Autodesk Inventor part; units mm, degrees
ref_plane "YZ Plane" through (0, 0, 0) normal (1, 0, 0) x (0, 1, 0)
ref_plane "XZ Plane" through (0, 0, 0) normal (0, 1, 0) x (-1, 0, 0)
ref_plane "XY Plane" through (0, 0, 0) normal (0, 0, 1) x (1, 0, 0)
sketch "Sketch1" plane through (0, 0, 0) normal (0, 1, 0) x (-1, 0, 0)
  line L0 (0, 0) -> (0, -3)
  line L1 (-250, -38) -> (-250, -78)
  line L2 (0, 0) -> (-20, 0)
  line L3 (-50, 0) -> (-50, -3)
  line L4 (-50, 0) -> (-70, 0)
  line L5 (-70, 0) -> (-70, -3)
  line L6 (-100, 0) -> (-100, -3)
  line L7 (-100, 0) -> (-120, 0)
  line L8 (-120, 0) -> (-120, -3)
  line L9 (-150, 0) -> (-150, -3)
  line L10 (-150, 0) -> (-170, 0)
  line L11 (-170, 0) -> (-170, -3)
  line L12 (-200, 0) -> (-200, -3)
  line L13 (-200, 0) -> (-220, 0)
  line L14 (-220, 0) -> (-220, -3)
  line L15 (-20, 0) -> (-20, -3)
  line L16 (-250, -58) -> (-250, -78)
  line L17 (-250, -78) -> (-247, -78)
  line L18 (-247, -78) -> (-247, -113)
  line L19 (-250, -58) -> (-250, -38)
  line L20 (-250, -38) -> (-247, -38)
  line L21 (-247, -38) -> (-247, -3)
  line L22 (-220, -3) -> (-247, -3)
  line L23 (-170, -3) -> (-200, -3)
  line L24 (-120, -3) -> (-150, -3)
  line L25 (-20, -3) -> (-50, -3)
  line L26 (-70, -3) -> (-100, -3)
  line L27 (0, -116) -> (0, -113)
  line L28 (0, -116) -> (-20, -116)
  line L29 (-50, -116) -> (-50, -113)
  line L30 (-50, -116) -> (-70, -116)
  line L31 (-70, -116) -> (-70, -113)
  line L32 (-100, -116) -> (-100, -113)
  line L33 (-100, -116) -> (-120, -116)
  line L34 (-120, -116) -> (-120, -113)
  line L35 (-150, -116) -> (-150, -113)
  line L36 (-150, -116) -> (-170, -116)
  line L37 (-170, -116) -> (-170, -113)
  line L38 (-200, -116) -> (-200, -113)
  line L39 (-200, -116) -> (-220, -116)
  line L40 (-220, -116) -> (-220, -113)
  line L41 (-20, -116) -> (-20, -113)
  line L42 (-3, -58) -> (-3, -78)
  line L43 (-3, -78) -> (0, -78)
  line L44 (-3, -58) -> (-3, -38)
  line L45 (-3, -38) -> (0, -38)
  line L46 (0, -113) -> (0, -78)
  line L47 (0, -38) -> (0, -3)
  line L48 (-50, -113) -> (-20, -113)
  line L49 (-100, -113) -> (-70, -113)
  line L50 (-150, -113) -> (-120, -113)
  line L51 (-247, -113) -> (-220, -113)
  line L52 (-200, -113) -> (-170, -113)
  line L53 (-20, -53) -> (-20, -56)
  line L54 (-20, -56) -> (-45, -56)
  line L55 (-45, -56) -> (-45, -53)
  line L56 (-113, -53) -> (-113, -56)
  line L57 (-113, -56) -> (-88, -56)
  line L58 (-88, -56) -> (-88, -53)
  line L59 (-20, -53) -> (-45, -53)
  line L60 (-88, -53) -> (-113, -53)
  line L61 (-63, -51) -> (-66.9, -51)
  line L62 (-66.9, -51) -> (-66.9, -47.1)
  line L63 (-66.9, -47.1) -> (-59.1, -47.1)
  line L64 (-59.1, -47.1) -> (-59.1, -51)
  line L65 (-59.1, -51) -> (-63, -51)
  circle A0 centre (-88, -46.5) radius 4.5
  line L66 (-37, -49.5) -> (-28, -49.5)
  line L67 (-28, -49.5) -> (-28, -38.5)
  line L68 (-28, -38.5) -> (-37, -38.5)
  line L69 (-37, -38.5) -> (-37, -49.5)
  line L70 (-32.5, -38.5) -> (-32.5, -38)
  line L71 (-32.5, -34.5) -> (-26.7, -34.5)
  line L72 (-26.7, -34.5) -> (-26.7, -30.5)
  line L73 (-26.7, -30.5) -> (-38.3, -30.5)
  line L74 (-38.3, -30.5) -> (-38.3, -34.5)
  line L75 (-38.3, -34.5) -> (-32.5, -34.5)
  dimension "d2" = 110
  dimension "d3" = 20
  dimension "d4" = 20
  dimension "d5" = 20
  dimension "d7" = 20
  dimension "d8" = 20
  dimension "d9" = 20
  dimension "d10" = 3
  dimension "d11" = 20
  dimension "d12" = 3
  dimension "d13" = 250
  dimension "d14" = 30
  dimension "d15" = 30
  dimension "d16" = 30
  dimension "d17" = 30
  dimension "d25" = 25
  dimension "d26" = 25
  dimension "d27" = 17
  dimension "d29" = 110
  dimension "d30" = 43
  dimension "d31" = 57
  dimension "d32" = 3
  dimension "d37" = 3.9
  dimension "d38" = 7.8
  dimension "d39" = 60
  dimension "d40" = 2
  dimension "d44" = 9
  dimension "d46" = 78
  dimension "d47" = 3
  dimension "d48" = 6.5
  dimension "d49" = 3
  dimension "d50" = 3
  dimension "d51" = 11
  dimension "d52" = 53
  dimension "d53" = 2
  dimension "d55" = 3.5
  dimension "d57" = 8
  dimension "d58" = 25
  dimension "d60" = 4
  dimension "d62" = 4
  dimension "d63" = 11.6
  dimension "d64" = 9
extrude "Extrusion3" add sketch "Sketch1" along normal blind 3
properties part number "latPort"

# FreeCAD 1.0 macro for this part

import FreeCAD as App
import Part
import Sketcher

doc = App.newDocument("Part")
body = doc.addObject("PartDesign::Body", "Body")

sketch1 = doc.addObject("Sketcher::SketchObject", "Sketch")
body.addObject(sketch1)
sketch1.AttachmentSupport = (doc.XZ_Plane, [""])
sketch1.MapMode = "FlatFace"
sketch1.addGeometry(Part.LineSegment(App.Vector(0, -38, 0), App.Vector(0, 0, 0)), False)
sketch1.addGeometry(Part.LineSegment(App.Vector(0, 0, 0), App.Vector(20, 0, 0)), False)
sketch1.addGeometry(Part.LineSegment(App.Vector(20, 0, 0), App.Vector(20, -3, 0)), False)
sketch1.addGeometry(Part.LineSegment(App.Vector(20, -3, 0), App.Vector(50, -3, 0)), False)
sketch1.addGeometry(Part.LineSegment(App.Vector(50, -3, 0), App.Vector(50, 0, 0)), False)
sketch1.addGeometry(Part.LineSegment(App.Vector(50, 0, 0), App.Vector(70, 0, 0)), False)
sketch1.addGeometry(Part.LineSegment(App.Vector(70, 0, 0), App.Vector(70, -3, 0)), False)
sketch1.addGeometry(Part.LineSegment(App.Vector(70, -3, 0), App.Vector(100, -3, 0)), False)
sketch1.addGeometry(Part.LineSegment(App.Vector(100, -3, 0), App.Vector(100, 0, 0)), False)
sketch1.addGeometry(Part.LineSegment(App.Vector(100, 0, 0), App.Vector(120, 0, 0)), False)
sketch1.addGeometry(Part.LineSegment(App.Vector(120, 0, 0), App.Vector(120, -3, 0)), False)
sketch1.addGeometry(Part.LineSegment(App.Vector(120, -3, 0), App.Vector(150, -3, 0)), False)
sketch1.addGeometry(Part.LineSegment(App.Vector(150, -3, 0), App.Vector(150, 0, 0)), False)
sketch1.addGeometry(Part.LineSegment(App.Vector(150, 0, 0), App.Vector(170, 0, 0)), False)
sketch1.addGeometry(Part.LineSegment(App.Vector(170, 0, 0), App.Vector(170, -3, 0)), False)
sketch1.addGeometry(Part.LineSegment(App.Vector(170, -3, 0), App.Vector(200, -3, 0)), False)
sketch1.addGeometry(Part.LineSegment(App.Vector(200, -3, 0), App.Vector(200, 0, 0)), False)
sketch1.addGeometry(Part.LineSegment(App.Vector(200, 0, 0), App.Vector(220, 0, 0)), False)
sketch1.addGeometry(Part.LineSegment(App.Vector(220, 0, 0), App.Vector(220, -3, 0)), False)
sketch1.addGeometry(Part.LineSegment(App.Vector(220, -3, 0), App.Vector(247, -3, 0)), False)
sketch1.addGeometry(Part.LineSegment(App.Vector(247, -3, 0), App.Vector(247, -38, 0)), False)
sketch1.addGeometry(Part.LineSegment(App.Vector(247, -38, 0), App.Vector(250, -38, 0)), False)
sketch1.addGeometry(Part.LineSegment(App.Vector(250, -38, 0), App.Vector(250, -78, 0)), False)
sketch1.addGeometry(Part.LineSegment(App.Vector(250, -78, 0), App.Vector(247, -78, 0)), False)
sketch1.addGeometry(Part.LineSegment(App.Vector(247, -78, 0), App.Vector(247, -113, 0)), False)
sketch1.addGeometry(Part.LineSegment(App.Vector(247, -113, 0), App.Vector(220, -113, 0)), False)
sketch1.addGeometry(Part.LineSegment(App.Vector(220, -113, 0), App.Vector(220, -116, 0)), False)
sketch1.addGeometry(Part.LineSegment(App.Vector(220, -116, 0), App.Vector(200, -116, 0)), False)
sketch1.addGeometry(Part.LineSegment(App.Vector(200, -116, 0), App.Vector(200, -113, 0)), False)
sketch1.addGeometry(Part.LineSegment(App.Vector(200, -113, 0), App.Vector(170, -113, 0)), False)
sketch1.addGeometry(Part.LineSegment(App.Vector(170, -113, 0), App.Vector(170, -116, 0)), False)
sketch1.addGeometry(Part.LineSegment(App.Vector(170, -116, 0), App.Vector(150, -116, 0)), False)
sketch1.addGeometry(Part.LineSegment(App.Vector(150, -116, 0), App.Vector(150, -113, 0)), False)
sketch1.addGeometry(Part.LineSegment(App.Vector(150, -113, 0), App.Vector(120, -113, 0)), False)
sketch1.addGeometry(Part.LineSegment(App.Vector(120, -113, 0), App.Vector(120, -116, 0)), False)
sketch1.addGeometry(Part.LineSegment(App.Vector(120, -116, 0), App.Vector(100, -116, 0)), False)
sketch1.addGeometry(Part.LineSegment(App.Vector(100, -116, 0), App.Vector(100, -113, 0)), False)
sketch1.addGeometry(Part.LineSegment(App.Vector(100, -113, 0), App.Vector(70, -113, 0)), False)
sketch1.addGeometry(Part.LineSegment(App.Vector(70, -113, 0), App.Vector(70, -116, 0)), False)
sketch1.addGeometry(Part.LineSegment(App.Vector(70, -116, 0), App.Vector(50, -116, 0)), False)
sketch1.addGeometry(Part.LineSegment(App.Vector(50, -116, 0), App.Vector(50, -113, 0)), False)
sketch1.addGeometry(Part.LineSegment(App.Vector(50, -113, 0), App.Vector(20, -113, 0)), False)
sketch1.addGeometry(Part.LineSegment(App.Vector(20, -113, 0), App.Vector(20, -116, 0)), False)
sketch1.addGeometry(Part.LineSegment(App.Vector(20, -116, 0), App.Vector(0, -116, 0)), False)
sketch1.addGeometry(Part.LineSegment(App.Vector(0, -116, 0), App.Vector(0, -78, 0)), False)
sketch1.addGeometry(Part.LineSegment(App.Vector(0, -78, 0), App.Vector(3, -78, 0)), False)
sketch1.addGeometry(Part.LineSegment(App.Vector(3, -78, 0), App.Vector(3, -38, 0)), False)
sketch1.addGeometry(Part.LineSegment(App.Vector(3, -38, 0), App.Vector(0, -38, 0)), False)
sketch1.addGeometry(Part.LineSegment(App.Vector(113, -56, 0), App.Vector(113, -53, 0)), False)
sketch1.addGeometry(Part.LineSegment(App.Vector(113, -53, 0), App.Vector(88, -53, 0)), False)
sketch1.addGeometry(Part.LineSegment(App.Vector(88, -53, 0), App.Vector(88, -56, 0)), False)
sketch1.addGeometry(Part.LineSegment(App.Vector(88, -56, 0), App.Vector(113, -56, 0)), False)
sketch1.addGeometry(Part.Circle(App.Vector(88, -46.5, 0), App.Vector(0, 0, 1), 4.5), False)
sketch1.addGeometry(Part.LineSegment(App.Vector(59.1, -51, 0), App.Vector(66.9, -51, 0)), False)
sketch1.addGeometry(Part.LineSegment(App.Vector(66.9, -51, 0), App.Vector(66.9, -47.1, 0)), False)
sketch1.addGeometry(Part.LineSegment(App.Vector(66.9, -47.1, 0), App.Vector(59.1, -47.1, 0)), False)
sketch1.addGeometry(Part.LineSegment(App.Vector(59.1, -47.1, 0), App.Vector(59.1, -51, 0)), False)
sketch1.addGeometry(Part.LineSegment(App.Vector(45, -53, 0), App.Vector(20, -53, 0)), False)
sketch1.addGeometry(Part.LineSegment(App.Vector(20, -53, 0), App.Vector(20, -56, 0)), False)
sketch1.addGeometry(Part.LineSegment(App.Vector(20, -56, 0), App.Vector(45, -56, 0)), False)
sketch1.addGeometry(Part.LineSegment(App.Vector(45, -56, 0), App.Vector(45, -53, 0)), False)
sketch1.addGeometry(Part.LineSegment(App.Vector(28, -49.5, 0), App.Vector(37, -49.5, 0)), False)
sketch1.addGeometry(Part.LineSegment(App.Vector(37, -49.5, 0), App.Vector(37, -38.5, 0)), False)
sketch1.addGeometry(Part.LineSegment(App.Vector(37, -38.5, 0), App.Vector(28, -38.5, 0)), False)
sketch1.addGeometry(Part.LineSegment(App.Vector(28, -38.5, 0), App.Vector(28, -49.5, 0)), False)
sketch1.addGeometry(Part.LineSegment(App.Vector(26.7, -34.5, 0), App.Vector(38.3, -34.5, 0)), False)
sketch1.addGeometry(Part.LineSegment(App.Vector(38.3, -34.5, 0), App.Vector(38.3, -30.5, 0)), False)
sketch1.addGeometry(Part.LineSegment(App.Vector(38.3, -30.5, 0), App.Vector(26.7, -30.5, 0)), False)
sketch1.addGeometry(Part.LineSegment(App.Vector(26.7, -30.5, 0), App.Vector(26.7, -34.5, 0)), False)
sketch1.addConstraint(Sketcher.Constraint("Coincident", 0, 2, 1, 1))
sketch1.addConstraint(Sketcher.Constraint("Coincident", 1, 2, 2, 1))
sketch1.addConstraint(Sketcher.Constraint("Coincident", 2, 2, 3, 1))
sketch1.addConstraint(Sketcher.Constraint("Coincident", 3, 2, 4, 1))
sketch1.addConstraint(Sketcher.Constraint("Coincident", 4, 2, 5, 1))
sketch1.addConstraint(Sketcher.Constraint("Coincident", 5, 2, 6, 1))
sketch1.addConstraint(Sketcher.Constraint("Coincident", 6, 2, 7, 1))
sketch1.addConstraint(Sketcher.Constraint("Coincident", 7, 2, 8, 1))
sketch1.addConstraint(Sketcher.Constraint("Coincident", 8, 2, 9, 1))
sketch1.addConstraint(Sketcher.Constraint("Coincident", 9, 2, 10, 1))
sketch1.addConstraint(Sketcher.Constraint("Coincident", 10, 2, 11, 1))
sketch1.addConstraint(Sketcher.Constraint("Coincident", 11, 2, 12, 1))
sketch1.addConstraint(Sketcher.Constraint("Coincident", 12, 2, 13, 1))
sketch1.addConstraint(Sketcher.Constraint("Coincident", 13, 2, 14, 1))
sketch1.addConstraint(Sketcher.Constraint("Coincident", 14, 2, 15, 1))
sketch1.addConstraint(Sketcher.Constraint("Coincident", 15, 2, 16, 1))
sketch1.addConstraint(Sketcher.Constraint("Coincident", 16, 2, 17, 1))
sketch1.addConstraint(Sketcher.Constraint("Coincident", 17, 2, 18, 1))
sketch1.addConstraint(Sketcher.Constraint("Coincident", 18, 2, 19, 1))
sketch1.addConstraint(Sketcher.Constraint("Coincident", 19, 2, 20, 1))
sketch1.addConstraint(Sketcher.Constraint("Coincident", 20, 2, 21, 1))
sketch1.addConstraint(Sketcher.Constraint("Coincident", 21, 2, 22, 1))
sketch1.addConstraint(Sketcher.Constraint("Coincident", 22, 2, 23, 1))
sketch1.addConstraint(Sketcher.Constraint("Coincident", 23, 2, 24, 1))
sketch1.addConstraint(Sketcher.Constraint("Coincident", 24, 2, 25, 1))
sketch1.addConstraint(Sketcher.Constraint("Coincident", 25, 2, 26, 1))
sketch1.addConstraint(Sketcher.Constraint("Coincident", 26, 2, 27, 1))
sketch1.addConstraint(Sketcher.Constraint("Coincident", 27, 2, 28, 1))
sketch1.addConstraint(Sketcher.Constraint("Coincident", 28, 2, 29, 1))
sketch1.addConstraint(Sketcher.Constraint("Coincident", 29, 2, 30, 1))
sketch1.addConstraint(Sketcher.Constraint("Coincident", 30, 2, 31, 1))
sketch1.addConstraint(Sketcher.Constraint("Coincident", 31, 2, 32, 1))
sketch1.addConstraint(Sketcher.Constraint("Coincident", 32, 2, 33, 1))
sketch1.addConstraint(Sketcher.Constraint("Coincident", 33, 2, 34, 1))
sketch1.addConstraint(Sketcher.Constraint("Coincident", 34, 2, 35, 1))
sketch1.addConstraint(Sketcher.Constraint("Coincident", 35, 2, 36, 1))
sketch1.addConstraint(Sketcher.Constraint("Coincident", 36, 2, 37, 1))
sketch1.addConstraint(Sketcher.Constraint("Coincident", 37, 2, 38, 1))
sketch1.addConstraint(Sketcher.Constraint("Coincident", 38, 2, 39, 1))
sketch1.addConstraint(Sketcher.Constraint("Coincident", 39, 2, 40, 1))
sketch1.addConstraint(Sketcher.Constraint("Coincident", 40, 2, 41, 1))
sketch1.addConstraint(Sketcher.Constraint("Coincident", 41, 2, 42, 1))
sketch1.addConstraint(Sketcher.Constraint("Coincident", 42, 2, 43, 1))
sketch1.addConstraint(Sketcher.Constraint("Coincident", 43, 2, 44, 1))
sketch1.addConstraint(Sketcher.Constraint("Coincident", 44, 2, 45, 1))
sketch1.addConstraint(Sketcher.Constraint("Coincident", 45, 2, 46, 1))
sketch1.addConstraint(Sketcher.Constraint("Coincident", 46, 2, 47, 1))
sketch1.addConstraint(Sketcher.Constraint("Coincident", 47, 2, 0, 1))
sketch1.addConstraint(Sketcher.Constraint("Coincident", 48, 2, 49, 1))
sketch1.addConstraint(Sketcher.Constraint("Coincident", 49, 2, 50, 1))
sketch1.addConstraint(Sketcher.Constraint("Coincident", 50, 2, 51, 1))
sketch1.addConstraint(Sketcher.Constraint("Coincident", 51, 2, 48, 1))
sketch1.addConstraint(Sketcher.Constraint("Coincident", 53, 2, 54, 1))
sketch1.addConstraint(Sketcher.Constraint("Coincident", 54, 2, 55, 1))
sketch1.addConstraint(Sketcher.Constraint("Coincident", 55, 2, 56, 1))
sketch1.addConstraint(Sketcher.Constraint("Coincident", 56, 2, 53, 1))
sketch1.addConstraint(Sketcher.Constraint("Coincident", 57, 2, 58, 1))
sketch1.addConstraint(Sketcher.Constraint("Coincident", 58, 2, 59, 1))
sketch1.addConstraint(Sketcher.Constraint("Coincident", 59, 2, 60, 1))
sketch1.addConstraint(Sketcher.Constraint("Coincident", 60, 2, 57, 1))
sketch1.addConstraint(Sketcher.Constraint("Coincident", 61, 2, 62, 1))
sketch1.addConstraint(Sketcher.Constraint("Coincident", 62, 2, 63, 1))
sketch1.addConstraint(Sketcher.Constraint("Coincident", 63, 2, 64, 1))
sketch1.addConstraint(Sketcher.Constraint("Coincident", 64, 2, 61, 1))
sketch1.addConstraint(Sketcher.Constraint("Coincident", 65, 2, 66, 1))
sketch1.addConstraint(Sketcher.Constraint("Coincident", 66, 2, 67, 1))
sketch1.addConstraint(Sketcher.Constraint("Coincident", 67, 2, 68, 1))
sketch1.addConstraint(Sketcher.Constraint("Coincident", 68, 2, 65, 1))
sketch1.addConstraint(Sketcher.Constraint("Vertical", 0))
sketch1.addConstraint(Sketcher.Constraint("Horizontal", 1))
sketch1.addConstraint(Sketcher.Constraint("Vertical", 2))
sketch1.addConstraint(Sketcher.Constraint("Horizontal", 3))
sketch1.addConstraint(Sketcher.Constraint("Vertical", 4))
sketch1.addConstraint(Sketcher.Constraint("Horizontal", 5))
sketch1.addConstraint(Sketcher.Constraint("Vertical", 6))
sketch1.addConstraint(Sketcher.Constraint("Horizontal", 7))
sketch1.addConstraint(Sketcher.Constraint("Vertical", 8))
sketch1.addConstraint(Sketcher.Constraint("Horizontal", 9))
sketch1.addConstraint(Sketcher.Constraint("Vertical", 10))
sketch1.addConstraint(Sketcher.Constraint("Horizontal", 11))
sketch1.addConstraint(Sketcher.Constraint("Vertical", 12))
sketch1.addConstraint(Sketcher.Constraint("Horizontal", 13))
sketch1.addConstraint(Sketcher.Constraint("Vertical", 14))
sketch1.addConstraint(Sketcher.Constraint("Horizontal", 15))
sketch1.addConstraint(Sketcher.Constraint("Vertical", 16))
sketch1.addConstraint(Sketcher.Constraint("Horizontal", 17))
sketch1.addConstraint(Sketcher.Constraint("Vertical", 18))
sketch1.addConstraint(Sketcher.Constraint("Horizontal", 19))
sketch1.addConstraint(Sketcher.Constraint("Vertical", 20))
sketch1.addConstraint(Sketcher.Constraint("Horizontal", 21))
sketch1.addConstraint(Sketcher.Constraint("Vertical", 22))
sketch1.addConstraint(Sketcher.Constraint("Horizontal", 23))
sketch1.addConstraint(Sketcher.Constraint("Vertical", 24))
sketch1.addConstraint(Sketcher.Constraint("Horizontal", 25))
sketch1.addConstraint(Sketcher.Constraint("Vertical", 26))
sketch1.addConstraint(Sketcher.Constraint("Horizontal", 27))
sketch1.addConstraint(Sketcher.Constraint("Vertical", 28))
sketch1.addConstraint(Sketcher.Constraint("Horizontal", 29))
sketch1.addConstraint(Sketcher.Constraint("Vertical", 30))
sketch1.addConstraint(Sketcher.Constraint("Horizontal", 31))
sketch1.addConstraint(Sketcher.Constraint("Vertical", 32))
sketch1.addConstraint(Sketcher.Constraint("Horizontal", 33))
sketch1.addConstraint(Sketcher.Constraint("Vertical", 34))
sketch1.addConstraint(Sketcher.Constraint("Horizontal", 35))
sketch1.addConstraint(Sketcher.Constraint("Vertical", 36))
sketch1.addConstraint(Sketcher.Constraint("Horizontal", 37))
sketch1.addConstraint(Sketcher.Constraint("Vertical", 38))
sketch1.addConstraint(Sketcher.Constraint("Horizontal", 39))
sketch1.addConstraint(Sketcher.Constraint("Vertical", 40))
sketch1.addConstraint(Sketcher.Constraint("Horizontal", 41))
sketch1.addConstraint(Sketcher.Constraint("Vertical", 42))
sketch1.addConstraint(Sketcher.Constraint("Horizontal", 43))
sketch1.addConstraint(Sketcher.Constraint("Vertical", 44))
sketch1.addConstraint(Sketcher.Constraint("Horizontal", 45))
sketch1.addConstraint(Sketcher.Constraint("Vertical", 46))
sketch1.addConstraint(Sketcher.Constraint("Horizontal", 47))
sketch1.addConstraint(Sketcher.Constraint("Vertical", 48))
sketch1.addConstraint(Sketcher.Constraint("Horizontal", 49))
sketch1.addConstraint(Sketcher.Constraint("Vertical", 50))
sketch1.addConstraint(Sketcher.Constraint("Horizontal", 51))
sketch1.addConstraint(Sketcher.Constraint("Horizontal", 53))
sketch1.addConstraint(Sketcher.Constraint("Vertical", 54))
sketch1.addConstraint(Sketcher.Constraint("Horizontal", 55))
sketch1.addConstraint(Sketcher.Constraint("Vertical", 56))
sketch1.addConstraint(Sketcher.Constraint("Horizontal", 57))
sketch1.addConstraint(Sketcher.Constraint("Vertical", 58))
sketch1.addConstraint(Sketcher.Constraint("Horizontal", 59))
sketch1.addConstraint(Sketcher.Constraint("Vertical", 60))
sketch1.addConstraint(Sketcher.Constraint("Horizontal", 61))
sketch1.addConstraint(Sketcher.Constraint("Vertical", 62))
sketch1.addConstraint(Sketcher.Constraint("Horizontal", 63))
sketch1.addConstraint(Sketcher.Constraint("Vertical", 64))
sketch1.addConstraint(Sketcher.Constraint("Horizontal", 65))
sketch1.addConstraint(Sketcher.Constraint("Vertical", 66))
sketch1.addConstraint(Sketcher.Constraint("Horizontal", 67))
sketch1.addConstraint(Sketcher.Constraint("Vertical", 68))
sketch1.addConstraint(Sketcher.Constraint("Coincident", 0, 2, -1, 1))
sketch1.addConstraint(Sketcher.Constraint("PointOnObject", 4, 2, -1))
sketch1.addConstraint(Sketcher.Constraint("PointOnObject", 8, 2, -1))
sketch1.addConstraint(Sketcher.Constraint("PointOnObject", 12, 2, -1))
sketch1.addConstraint(Sketcher.Constraint("PointOnObject", 16, 2, -1))
sketch1.addConstraint(Sketcher.Constraint("PointOnObject", 43, 2, -2))
sketch1.addConstraint(Sketcher.Constraint("Horizontal", 3, 2, 6, 2))
sketch1.addConstraint(Sketcher.Constraint("Horizontal", 7, 2, 10, 2))
sketch1.addConstraint(Sketcher.Constraint("Horizontal", 11, 2, 14, 2))
sketch1.addConstraint(Sketcher.Constraint("Horizontal", 15, 2, 18, 2))
sketch1.addConstraint(Sketcher.Constraint("Horizontal", 25, 2, 28, 2))
sketch1.addConstraint(Sketcher.Constraint("Horizontal", 27, 2, 30, 2))
sketch1.addConstraint(Sketcher.Constraint("Horizontal", 29, 2, 32, 2))
sketch1.addConstraint(Sketcher.Constraint("Horizontal", 31, 2, 34, 2))
sketch1.addConstraint(Sketcher.Constraint("Horizontal", 33, 2, 36, 2))
sketch1.addConstraint(Sketcher.Constraint("Horizontal", 35, 2, 38, 2))
sketch1.addConstraint(Sketcher.Constraint("Horizontal", 37, 2, 40, 2))
sketch1.addConstraint(Sketcher.Constraint("Horizontal", 39, 2, 42, 2))
sketch1.addConstraint(Sketcher.Constraint("Horizontal", 23, 2, 44, 2))
sketch1.addConstraint(Sketcher.Constraint("Horizontal", 21, 2, 46, 2))
sketch1.addConstraint(Sketcher.Constraint("Horizontal", 49, 2, 57, 2))
sketch1.addConstraint(Sketcher.Constraint("Horizontal", 51, 2, 58, 2))
sketch1.addConstraint(Sketcher.Constraint("Vertical", 20, 2, 23, 2))
sketch1.addConstraint(Sketcher.Constraint("Vertical", 18, 2, 25, 2))
sketch1.addConstraint(Sketcher.Constraint("Vertical", 16, 2, 27, 2))
sketch1.addConstraint(Sketcher.Constraint("Vertical", 14, 2, 29, 2))
sketch1.addConstraint(Sketcher.Constraint("Vertical", 12, 2, 31, 2))
sketch1.addConstraint(Sketcher.Constraint("Vertical", 10, 2, 33, 2))
sketch1.addConstraint(Sketcher.Constraint("Vertical", 8, 2, 35, 2))
sketch1.addConstraint(Sketcher.Constraint("Vertical", 6, 2, 37, 2))
sketch1.addConstraint(Sketcher.Constraint("Vertical", 4, 2, 39, 2))
sketch1.addConstraint(Sketcher.Constraint("Vertical", 2, 2, 41, 2))
sketch1.addConstraint(Sketcher.Constraint("Vertical", 52, 3, 49, 2))
sketch1.addConstraint(Sketcher.Constraint("Vertical", 42, 2, 57, 2))
sketch1.addConstraint(Sketcher.Constraint("Equal", 1, 5))
sketch1.addConstraint(Sketcher.Constraint("Equal", 3, 7))
sketch1.addConstraint(Sketcher.Constraint("Equal", 5, 9))
sketch1.addConstraint(Sketcher.Constraint("Equal", 7, 11))
sketch1.addConstraint(Sketcher.Constraint("Equal", 9, 13))
sketch1.addConstraint(Sketcher.Constraint("Equal", 11, 15))
sketch1.addConstraint(Sketcher.Constraint("Equal", 13, 17))
sketch1.addConstraint(Sketcher.Constraint("Equal", 23, 45))
sketch1.addConstraint(Sketcher.Constraint("Equal", 51, 57))
sketch1.addConstraint(Sketcher.Constraint("Equal", 47, 2))
sketch1.addConstraint(Sketcher.Constraint("Equal", 20, 24))
sketch1.addConstraint(Sketcher.Constraint("Equal", 18, 26))
sketch1.addConstraint(Sketcher.Constraint("Equal", 42, 48))
sketch1.addConstraint(Sketcher.Constraint("Diameter", 52, 9.0))
sketch1.addConstraint(Sketcher.Constraint("DistanceX", 1, 1, 1, 2, 20.0))
sketch1.addConstraint(Sketcher.Constraint("DistanceX", 3, 1, 3, 2, 30.0))
sketch1.addConstraint(Sketcher.Constraint("DistanceX", 21, 1, 21, 2, 3.0))
sketch1.addConstraint(Sketcher.Constraint("DistanceX", 49, 2, 49, 1, 25.0))
sketch1.addConstraint(Sketcher.Constraint("DistanceX", 61, 1, 61, 2, 9.0))
sketch1.addConstraint(Sketcher.Constraint("DistanceY", 62, 1, 62, 2, 11.0))
sketch1.addConstraint(Sketcher.Constraint("DistanceY", 66, 1, 66, 2, 4.0))
sketch1.addConstraint(Sketcher.Constraint("DistanceX", 53, 1, 53, 2, 7.8))
sketch1.addConstraint(Sketcher.Constraint("DistanceX", 65, 1, 65, 2, 11.6))
sketch1.addConstraint(Sketcher.Constraint("DistanceY", 54, 1, 54, 2, 3.9))
sketch1.addConstraint(Sketcher.Constraint("DistanceX", -1, 1, 21, 2, 250.0))
sketch1.addConstraint(Sketcher.Constraint("DistanceY", 22, 2, -1, 1, 78.0))
sketch1.addConstraint(Sketcher.Constraint("DistanceY", 48, 2, -1, 1, 53.0))
sketch1.addConstraint(Sketcher.Constraint("DistanceY", 0, 1, 0, 2, 38.0))
sketch1.addConstraint(Sketcher.Constraint("DistanceX", -1, 1, 52, 3, 88.0))
sketch1.addConstraint(Sketcher.Constraint("DistanceY", 53, 2, -1, 1, 51.0))
sketch1.addConstraint(Sketcher.Constraint("DistanceX", -1, 1, 61, 2, 37.0))
sketch1.addConstraint(Sketcher.Constraint("DistanceY", 52, 3, -1, 1, 46.5))
sketch1.addConstraint(Sketcher.Constraint("DistanceX", -1, 1, 53, 2, 66.9))
sketch1.addConstraint(Sketcher.Constraint("DistanceY", 61, 2, -1, 1, 49.5))
sketch1.addConstraint(Sketcher.Constraint("DistanceX", -1, 1, 65, 2, 38.3))
sketch1.addConstraint(Sketcher.Constraint("DistanceY", 65, 2, -1, 1, 34.5))
pad1 = doc.addObject("PartDesign::Pad", "Pad")
body.addObject(pad1)
pad1.Profile = sketch1
pad1.Length = 3
pad1.Reversed = True

doc.recompute()
